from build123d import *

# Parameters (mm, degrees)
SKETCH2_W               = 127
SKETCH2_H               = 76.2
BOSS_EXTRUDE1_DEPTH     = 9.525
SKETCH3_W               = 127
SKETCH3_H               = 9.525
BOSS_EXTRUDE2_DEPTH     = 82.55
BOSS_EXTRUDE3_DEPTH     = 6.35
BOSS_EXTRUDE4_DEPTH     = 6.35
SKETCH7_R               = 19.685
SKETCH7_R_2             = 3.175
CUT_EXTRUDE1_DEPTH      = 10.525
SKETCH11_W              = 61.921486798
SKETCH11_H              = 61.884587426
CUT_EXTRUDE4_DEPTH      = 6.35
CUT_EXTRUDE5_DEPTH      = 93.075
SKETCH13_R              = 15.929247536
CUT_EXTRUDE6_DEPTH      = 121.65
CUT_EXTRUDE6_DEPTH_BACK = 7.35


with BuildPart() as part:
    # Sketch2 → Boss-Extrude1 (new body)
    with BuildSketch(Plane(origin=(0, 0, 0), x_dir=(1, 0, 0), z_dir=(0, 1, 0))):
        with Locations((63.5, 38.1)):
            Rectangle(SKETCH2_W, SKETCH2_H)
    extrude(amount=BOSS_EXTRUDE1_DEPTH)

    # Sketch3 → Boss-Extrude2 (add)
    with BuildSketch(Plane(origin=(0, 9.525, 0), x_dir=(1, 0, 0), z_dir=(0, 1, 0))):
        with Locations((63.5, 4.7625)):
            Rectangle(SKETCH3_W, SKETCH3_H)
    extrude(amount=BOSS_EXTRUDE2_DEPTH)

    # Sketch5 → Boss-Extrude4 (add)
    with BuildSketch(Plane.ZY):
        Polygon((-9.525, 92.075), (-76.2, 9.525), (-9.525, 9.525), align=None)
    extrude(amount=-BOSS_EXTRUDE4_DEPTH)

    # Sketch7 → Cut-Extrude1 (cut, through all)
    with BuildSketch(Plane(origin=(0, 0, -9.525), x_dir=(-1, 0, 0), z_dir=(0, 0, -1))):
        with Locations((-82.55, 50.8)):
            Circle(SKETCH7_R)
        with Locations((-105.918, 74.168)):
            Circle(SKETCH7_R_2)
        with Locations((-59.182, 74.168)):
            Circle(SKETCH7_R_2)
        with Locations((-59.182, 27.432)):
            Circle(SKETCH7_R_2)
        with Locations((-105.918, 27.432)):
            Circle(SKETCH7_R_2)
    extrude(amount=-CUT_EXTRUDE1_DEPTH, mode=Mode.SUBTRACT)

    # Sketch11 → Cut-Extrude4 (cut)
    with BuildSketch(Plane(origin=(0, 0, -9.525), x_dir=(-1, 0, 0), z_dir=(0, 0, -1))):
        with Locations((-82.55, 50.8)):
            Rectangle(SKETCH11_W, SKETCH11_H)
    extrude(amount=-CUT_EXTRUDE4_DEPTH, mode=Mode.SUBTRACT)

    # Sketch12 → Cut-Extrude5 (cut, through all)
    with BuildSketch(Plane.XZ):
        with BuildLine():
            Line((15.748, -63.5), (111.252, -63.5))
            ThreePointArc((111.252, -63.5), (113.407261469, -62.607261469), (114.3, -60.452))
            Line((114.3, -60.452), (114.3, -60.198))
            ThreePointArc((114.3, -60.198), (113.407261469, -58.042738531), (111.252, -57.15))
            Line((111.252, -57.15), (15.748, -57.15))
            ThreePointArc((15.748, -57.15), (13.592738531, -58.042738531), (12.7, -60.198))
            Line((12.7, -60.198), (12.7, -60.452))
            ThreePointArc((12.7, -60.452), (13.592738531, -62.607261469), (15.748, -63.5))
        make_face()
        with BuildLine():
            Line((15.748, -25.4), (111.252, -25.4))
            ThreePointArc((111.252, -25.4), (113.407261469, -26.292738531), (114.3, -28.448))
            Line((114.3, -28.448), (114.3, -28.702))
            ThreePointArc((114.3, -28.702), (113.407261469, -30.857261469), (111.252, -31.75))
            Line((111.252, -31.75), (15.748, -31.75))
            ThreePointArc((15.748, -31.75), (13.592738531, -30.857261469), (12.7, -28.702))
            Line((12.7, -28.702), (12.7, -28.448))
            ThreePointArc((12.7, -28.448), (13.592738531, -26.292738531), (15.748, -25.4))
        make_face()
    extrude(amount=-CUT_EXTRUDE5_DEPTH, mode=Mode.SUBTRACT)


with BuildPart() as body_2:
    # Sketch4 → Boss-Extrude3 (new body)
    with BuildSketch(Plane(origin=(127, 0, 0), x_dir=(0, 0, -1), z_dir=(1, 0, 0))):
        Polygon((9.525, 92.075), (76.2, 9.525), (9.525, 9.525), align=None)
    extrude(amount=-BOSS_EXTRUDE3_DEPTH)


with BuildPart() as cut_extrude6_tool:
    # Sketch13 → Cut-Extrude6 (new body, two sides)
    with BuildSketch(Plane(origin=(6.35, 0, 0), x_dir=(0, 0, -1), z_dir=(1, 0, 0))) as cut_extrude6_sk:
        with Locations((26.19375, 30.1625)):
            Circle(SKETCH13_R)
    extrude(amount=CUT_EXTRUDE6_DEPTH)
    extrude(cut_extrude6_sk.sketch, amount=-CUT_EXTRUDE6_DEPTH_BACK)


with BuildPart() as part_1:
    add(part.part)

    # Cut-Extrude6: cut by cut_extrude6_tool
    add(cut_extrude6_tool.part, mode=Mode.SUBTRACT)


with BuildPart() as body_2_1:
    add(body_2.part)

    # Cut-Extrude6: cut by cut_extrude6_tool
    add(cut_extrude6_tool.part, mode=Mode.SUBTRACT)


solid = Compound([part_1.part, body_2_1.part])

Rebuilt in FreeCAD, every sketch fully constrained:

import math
import FreeCAD as App
import Part
import Sketcher
from FreeCAD import Vector
Q = App.Units.Quantity

doc = App.newDocument("Part")
body = doc.addObject("PartDesign::Body", "Body")

# Sketch on XZ plane
sketch1 = doc.addObject("Sketcher::SketchObject", "Sketch")
body.addObject(sketch1)
sketch1.AttachmentSupport = (doc.XZ_Plane, [""])
sketch1.MapMode = "FlatFace"
sketch1.addGeometry(Part.LineSegment(Vector(0, -76, 0), Vector(0, 0, 0)), False)
sketch1.addGeometry(Part.LineSegment(Vector(0, 0, 0), Vector(127, 0, 0)), False)
sketch1.addGeometry(Part.LineSegment(Vector(127, 0, 0), Vector(127, -76, 0)), False)
sketch1.addGeometry(Part.LineSegment(Vector(127, -76, 0), Vector(0, -76, 0)), False)
sketch1.addConstraint(Sketcher.Constraint("Coincident", 0, 2, 1, 1))
sketch1.addConstraint(Sketcher.Constraint("Coincident", 1, 2, 2, 1))
sketch1.addConstraint(Sketcher.Constraint("Coincident", 2, 2, 3, 1))
sketch1.addConstraint(Sketcher.Constraint("Coincident", 3, 2, 0, 1))
sketch1.addConstraint(Sketcher.Constraint("Vertical", 0))
sketch1.addConstraint(Sketcher.Constraint("Horizontal", 1))
sketch1.addConstraint(Sketcher.Constraint("Vertical", 2))
sketch1.addConstraint(Sketcher.Constraint("Horizontal", 3))
sketch1.addConstraint(Sketcher.Constraint("Coincident", 0, 2, -1, 1))
sketch1.addConstraint(Sketcher.Constraint("DistanceX", 1, 1, 1, 2, Q("5 in")))
sketch1.addConstraint(Sketcher.Constraint("DistanceY", 0, 1, 0, 2, Q("3 in")))
pad1 = doc.addObject("PartDesign::Pad", "Pad")
body.addObject(pad1)
pad1.Profile = sketch1
pad1.Length = Q("0.375 in")
pad1.Reversed = True

# Sketch on XZ plane
sketch2 = doc.addObject("Sketcher::SketchObject", "Sketch001")
body.addObject(sketch2)
sketch2.AttachmentSupport = (doc.XZ_Plane, [""])
sketch2.MapMode = "FlatFace"
sketch2.AttachmentOffset = App.Placement(Vector(0, 0, -0.375 * 25.4), App.Rotation())
sketch2.addGeometry(Part.LineSegment(Vector(0, -10, 0), Vector(0, 0, 0)), False)
sketch2.addGeometry(Part.LineSegment(Vector(0, 0, 0), Vector(127, 0, 0)), False)
sketch2.addGeometry(Part.LineSegment(Vector(127, 0, 0), Vector(127, -10, 0)), False)
sketch2.addGeometry(Part.LineSegment(Vector(127, -10, 0), Vector(0, -10, 0)), False)
sketch2.addConstraint(Sketcher.Constraint("Coincident", 0, 2, 1, 1))
sketch2.addConstraint(Sketcher.Constraint("Coincident", 1, 2, 2, 1))
sketch2.addConstraint(Sketcher.Constraint("Coincident", 2, 2, 3, 1))
sketch2.addConstraint(Sketcher.Constraint("Coincident", 3, 2, 0, 1))
sketch2.addConstraint(Sketcher.Constraint("Vertical", 0))
sketch2.addConstraint(Sketcher.Constraint("Horizontal", 1))
sketch2.addConstraint(Sketcher.Constraint("Vertical", 2))
sketch2.addConstraint(Sketcher.Constraint("Horizontal", 3))
sketch2.addConstraint(Sketcher.Constraint("Coincident", 0, 2, -1, 1))
sketch2.addConstraint(Sketcher.Constraint("DistanceX", 1, 1, 1, 2, Q("5 in")))
sketch2.addConstraint(Sketcher.Constraint("DistanceY", 0, 1, 0, 2, Q("0.375 in")))
pad2 = doc.addObject("PartDesign::Pad", "Pad001")
body.addObject(pad2)
pad2.Profile = sketch2
pad2.Length = Q("3.25 in")
pad2.Reversed = True

# Sketch on YZ plane
sketch3 = doc.addObject("Sketcher::SketchObject", "Sketch002")
body.addObject(sketch3)
sketch3.AttachmentSupport = (doc.YZ_Plane, [""])
sketch3.MapMode = "FlatFace"
sketch3.addGeometry(Part.LineSegment(Vector(92, -10, 0), Vector(10, -76, 0)), False)
sketch3.addGeometry(Part.LineSegment(Vector(10, -76, 0), Vector(10, -10, 0)), False)
sketch3.addGeometry(Part.LineSegment(Vector(10, -10, 0), Vector(92, -10, 0)), False)
sketch3.addConstraint(Sketcher.Constraint("Coincident", 0, 2, 1, 1))
sketch3.addConstraint(Sketcher.Constraint("Coincident", 1, 2, 2, 1))
sketch3.addConstraint(Sketcher.Constraint("Coincident", 2, 2, 0, 1))
sketch3.addConstraint(Sketcher.Constraint("Vertical", 1))
sketch3.addConstraint(Sketcher.Constraint("Horizontal", 2))
sketch3.addConstraint(Sketcher.Constraint("DistanceY", 0, 2, -1, 1, Q("3 in")))
sketch3.addConstraint(Sketcher.Constraint("DistanceX", 2, 1, 2, 2, Q("3.25 in")))
sketch3.addConstraint(Sketcher.Constraint("DistanceY", 1, 1, 1, 2, Q("2.625 in")))
sketch3.addConstraint(Sketcher.Constraint("DistanceX", -1, 1, 0, 2, Q("0.375 in")))
pad3 = doc.addObject("PartDesign::Pad", "Pad002")
body.addObject(pad3)
pad3.Profile = sketch3
pad3.Length = Q("0.25 in")

# Sketch on XY plane
sketch4 = doc.addObject("Sketcher::SketchObject", "Sketch003")
body.addObject(sketch4)
sketch4.AttachmentSupport = (doc.XY_Plane, [""])
sketch4.MapMode = "FlatFace"
sketch4.AttachmentOffset = App.Placement(Vector(0, 0, -0.375 * 25.4), App.Rotation())
sketch4.addGeometry(Part.Circle(Vector(82.5, 50.8, 0), Vector(0, 0, 1), 19.7), False)
sketch4.addGeometry(Part.Circle(Vector(105.9, 74.2, 0), Vector(0, 0, 1), 3.2), False)
sketch4.addGeometry(Part.Circle(Vector(59.2, 74.2, 0), Vector(0, 0, 1), 3.2), False)
sketch4.addGeometry(Part.Circle(Vector(59.2, 27.4, 0), Vector(0, 0, 1), 3.2), False)
sketch4.addGeometry(Part.Circle(Vector(105.9, 27.4, 0), Vector(0, 0, 1), 3.2), False)
sketch4.addConstraint(Sketcher.Constraint("Equal", 1, 2))
sketch4.addConstraint(Sketcher.Constraint("Equal", 2, 3))
sketch4.addConstraint(Sketcher.Constraint("Equal", 3, 4))
sketch4.addConstraint(Sketcher.Constraint("Horizontal", 1, 3, 2, 3))
sketch4.addConstraint(Sketcher.Constraint("Horizontal", 3, 3, 4, 3))
sketch4.addConstraint(Sketcher.Constraint("Vertical", 2, 3, 3, 3))
sketch4.addConstraint(Sketcher.Constraint("Vertical", 1, 3, 4, 3))
sketch4.addConstraint(Sketcher.Constraint("Diameter", 0, Q("1.55 in")))
sketch4.addConstraint(Sketcher.Constraint("Diameter", 1, Q("0.25 in")))
sketch4.addConstraint(Sketcher.Constraint("DistanceY", -1, 1, 0, 3, Q("2 in")))
sketch4.addConstraint(Sketcher.Constraint("DistanceX", -1, 1, 0, 3, Q("3.25 in")))
sketch4.addConstraint(Sketcher.Constraint("DistanceX", -1, 1, 1, 3, Q("4.17 in")))
sketch4.addConstraint(Sketcher.Constraint("DistanceY", -1, 1, 1, 3, Q("2.92 in")))
sketch4.addConstraint(Sketcher.Constraint("DistanceX", -1, 1, 2, 3, Q("2.33 in")))
sketch4.addConstraint(Sketcher.Constraint("DistanceY", -1, 1, 3, 3, Q("1.08 in")))
pocket1 = doc.addObject("PartDesign::Pocket", "Pocket")
body.addObject(pocket1)
pocket1.Profile = sketch4
pocket1.Type = "ThroughAll"
pocket1.Reversed = True

# Sketch on XY plane
sketch5 = doc.addObject("Sketcher::SketchObject", "Sketch004")
body.addObject(sketch5)
sketch5.AttachmentSupport = (doc.XY_Plane, [""])
sketch5.MapMode = "FlatFace"
sketch5.AttachmentOffset = App.Placement(Vector(0, 0, -0.375 * 25.4), App.Rotation())
sketch5.addGeometry(Part.LineSegment(Vector(114, 82, 0), Vector(114, 20, 0)), False)
sketch5.addGeometry(Part.LineSegment(Vector(114, 20, 0), Vector(52, 20, 0)), False)
sketch5.addGeometry(Part.LineSegment(Vector(52, 20, 0), Vector(52, 82, 0)), False)
sketch5.addGeometry(Part.LineSegment(Vector(52, 82, 0), Vector(114, 82, 0)), False)
sketch5.addConstraint(Sketcher.Constraint("Coincident", 0, 2, 1, 1))
sketch5.addConstraint(Sketcher.Constraint("Coincident", 1, 2, 2, 1))
sketch5.addConstraint(Sketcher.Constraint("Coincident", 2, 2, 3, 1))
sketch5.addConstraint(Sketcher.Constraint("Coincident", 3, 2, 0, 1))
sketch5.addConstraint(Sketcher.Constraint("Vertical", 0))
sketch5.addConstraint(Sketcher.Constraint("Horizontal", 1))
sketch5.addConstraint(Sketcher.Constraint("Vertical", 2))
sketch5.addConstraint(Sketcher.Constraint("Horizontal", 3))
sketch5.addConstraint(Sketcher.Constraint("DistanceX", 1, 2, 1, 1, Q("61.921487 mm")))
sketch5.addConstraint(Sketcher.Constraint("DistanceY", 0, 2, 0, 1, Q("61.884587 mm")))
sketch5.addConstraint(Sketcher.Constraint("DistanceX", -1, 1, 0, 2, Q("113.510743 mm")))
sketch5.addConstraint(Sketcher.Constraint("DistanceY", -1, 1, 0, 2, Q("19.857706 mm")))
pocket2 = doc.addObject("PartDesign::Pocket", "Pocket001")
body.addObject(pocket2)
pocket2.Profile = sketch5
pocket2.Length = Q("0.25 in")
pocket2.Reversed = True

# Sketch on XZ plane
sketch6 = doc.addObject("Sketcher::SketchObject", "Sketch005")
body.addObject(sketch6)
sketch6.AttachmentSupport = (doc.XZ_Plane, [""])
sketch6.MapMode = "FlatFace"
sketch6.addGeometry(Part.LineSegment(Vector(15.75, -63.5, 0), Vector(111.25, -63.5, 0)), False)
sketch6.addGeometry(Part.ArcOfCircle(Part.Circle(Vector(111.25, -60.45, 0), Vector(0, 0, 1), 3.05), math.radians(-90), math.radians(0)), False)
sketch6.addGeometry(Part.LineSegment(Vector(114.3, -60.45, 0), Vector(114.3, -60.2, 0)), False)
sketch6.addGeometry(Part.ArcOfCircle(Part.Circle(Vector(111.25, -60.2, 0), Vector(0, 0, 1), 3.05), math.radians(0), math.radians(90)), False)
sketch6.addGeometry(Part.LineSegment(Vector(111.25, -57.15, 0), Vector(15.75, -57.15, 0)), False)
sketch6.addGeometry(Part.ArcOfCircle(Part.Circle(Vector(15.75, -60.2, 0), Vector(0, 0, 1), 3.05), math.radians(90), math.radians(180)), False)
sketch6.addGeometry(Part.LineSegment(Vector(12.7, -60.2, 0), Vector(12.7, -60.45, 0)), False)
sketch6.addGeometry(Part.ArcOfCircle(Part.Circle(Vector(15.75, -60.45, 0), Vector(0, 0, 1), 3.05), math.radians(180), math.radians(270)), False)
sketch6.addGeometry(Part.LineSegment(Vector(111.25, -25.4, 0), Vector(15.75, -25.4, 0)), False)
sketch6.addGeometry(Part.ArcOfCircle(Part.Circle(Vector(15.75, -28.45, 0), Vector(0, 0, 1), 3.05), math.radians(90), math.radians(180)), False)
sketch6.addGeometry(Part.LineSegment(Vector(12.7, -28.45, 0), Vector(12.7, -28.7, 0)), False)
sketch6.addGeometry(Part.ArcOfCircle(Part.Circle(Vector(15.75, -28.7, 0), Vector(0, 0, 1), 3.05), math.radians(180), math.radians(270)), False)
sketch6.addGeometry(Part.LineSegment(Vector(15.75, -31.75, 0), Vector(111.25, -31.75, 0)), False)
sketch6.addGeometry(Part.ArcOfCircle(Part.Circle(Vector(111.25, -28.7, 0), Vector(0, 0, 1), 3.05), math.radians(-90), math.radians(0)), False)
sketch6.addGeometry(Part.LineSegment(Vector(114.3, -28.7, 0), Vector(114.3, -28.45, 0)), False)
sketch6.addGeometry(Part.ArcOfCircle(Part.Circle(Vector(111.25, -28.45, 0), Vector(0, 0, 1), 3.05), math.radians(0), math.radians(90)), False)
sketch6.addConstraint(Sketcher.Constraint("Tangent", 0, 2, 1, 1))
sketch6.addConstraint(Sketcher.Constraint("Tangent", 1, 2, 2, 1))
sketch6.addConstraint(Sketcher.Constraint("Tangent", 2, 2, 3, 1))
sketch6.addConstraint(Sketcher.Constraint("Tangent", 3, 2, 4, 1))
sketch6.addConstraint(Sketcher.Constraint("Tangent", 4, 2, 5, 1))
sketch6.addConstraint(Sketcher.Constraint("Tangent", 5, 2, 6, 1))
sketch6.addConstraint(Sketcher.Constraint("Tangent", 6, 2, 7, 1))
sketch6.addConstraint(Sketcher.Constraint("Tangent", 7, 2, 0, 1))
sketch6.addConstraint(Sketcher.Constraint("Tangent", 8, 2, 9, 1))
sketch6.addConstraint(Sketcher.Constraint("Tangent", 9, 2, 10, 1))
sketch6.addConstraint(Sketcher.Constraint("Tangent", 10, 2, 11, 1))
sketch6.addConstraint(Sketcher.Constraint("Tangent", 11, 2, 12, 1))
sketch6.addConstraint(Sketcher.Constraint("Tangent", 12, 2, 13, 1))
sketch6.addConstraint(Sketcher.Constraint("Tangent", 13, 2, 14, 1))
sketch6.addConstraint(Sketcher.Constraint("Tangent", 14, 2, 15, 1))
sketch6.addConstraint(Sketcher.Constraint("Tangent", 15, 2, 8, 1))
sketch6.addConstraint(Sketcher.Constraint("Horizontal", 0))
sketch6.addConstraint(Sketcher.Constraint("Vertical", 2))
sketch6.addConstraint(Sketcher.Constraint("Horizontal", 4))
sketch6.addConstraint(Sketcher.Constraint("Vertical", 6))
sketch6.addConstraint(Sketcher.Constraint("Horizontal", 8))
sketch6.addConstraint(Sketcher.Constraint("Vertical", 10))
sketch6.addConstraint(Sketcher.Constraint("Horizontal", 12))
sketch6.addConstraint(Sketcher.Constraint("Vertical", 14))
sketch6.addConstraint(Sketcher.Constraint("Equal", 1, 3))
sketch6.addConstraint(Sketcher.Constraint("Equal", 3, 5))
sketch6.addConstraint(Sketcher.Constraint("Equal", 5, 7))
sketch6.addConstraint(Sketcher.Constraint("Equal", 7, 9))
sketch6.addConstraint(Sketcher.Constraint("Equal", 9, 11))
sketch6.addConstraint(Sketcher.Constraint("Equal", 11, 13))
sketch6.addConstraint(Sketcher.Constraint("Equal", 13, 15))
sketch6.addConstraint(Sketcher.Constraint("Vertical", 7, 3, 9, 3))
sketch6.addConstraint(Sketcher.Constraint("Vertical", 3, 3, 13, 3))
sketch6.addConstraint(Sketcher.Constraint("Equal", 6, 10))
sketch6.addConstraint(Sketcher.Constraint("Radius", 1, Q("0.12 in")))
sketch6.addConstraint(Sketcher.Constraint("DistanceY", 8, 2, -1, 1, Q("1 in")))
sketch6.addConstraint(Sketcher.Constraint("DistanceY", 3, 2, 12, 2, Q("1 in")))
sketch6.addConstraint(Sketcher.Constraint("DistanceX", 0, 1, 0, 2, Q("3.76 in")))
sketch6.addConstraint(Sketcher.Constraint("DistanceY", 2, 1, 2, 2, Q("0.01 in")))
sketch6.addConstraint(Sketcher.Constraint("DistanceX", -1, 1, 1, 2, Q("4.5 in")))
pocket3 = doc.addObject("PartDesign::Pocket", "Pocket002")
body.addObject(pocket3)
pocket3.Profile = sketch6
pocket3.Type = "ThroughAll"
body2 = doc.addObject("PartDesign::Body", "Body001")

# Sketch on YZ plane
sketch7 = doc.addObject("Sketcher::SketchObject", "Sketch006")
body2.addObject(sketch7)
sketch7.AttachmentSupport = (doc.getObject("YZ_Plane001"), [""])
sketch7.MapMode = "FlatFace"
sketch7.AttachmentOffset = App.Placement(Vector(0, 0, 5 * 25.4), App.Rotation())
sketch7.addGeometry(Part.LineSegment(Vector(10, -76, 0), Vector(92, -10, 0)), False)
sketch7.addGeometry(Part.LineSegment(Vector(92, -10, 0), Vector(10, -10, 0)), False)
sketch7.addGeometry(Part.LineSegment(Vector(10, -10, 0), Vector(10, -76, 0)), False)
sketch7.addConstraint(Sketcher.Constraint("Coincident", 0, 2, 1, 1))
sketch7.addConstraint(Sketcher.Constraint("Coincident", 1, 2, 2, 1))
sketch7.addConstraint(Sketcher.Constraint("Coincident", 2, 2, 0, 1))
sketch7.addConstraint(Sketcher.Constraint("Horizontal", 1))
sketch7.addConstraint(Sketcher.Constraint("Vertical", 2))
sketch7.addConstraint(Sketcher.Constraint("DistanceY", 2, 2, -1, 1, Q("3 in")))
sketch7.addConstraint(Sketcher.Constraint("DistanceX", 1, 2, 1, 1, Q("3.25 in")))
sketch7.addConstraint(Sketcher.Constraint("DistanceY", 2, 2, 2, 1, Q("2.625 in")))
sketch7.addConstraint(Sketcher.Constraint("DistanceX", -1, 1, 0, 2, Q("3.625 in")))
pad4 = doc.addObject("PartDesign::Pad", "Pad003")
body2.addObject(pad4)
pad4.Profile = sketch7
pad4.Length = Q("0.25 in")
pad4.Reversed = True
body3 = doc.addObject("PartDesign::Body", "Body002")

# Sketch on YZ plane
sketch8 = doc.addObject("Sketcher::SketchObject", "Sketch007")
body3.addObject(sketch8)
sketch8.AttachmentSupport = (doc.getObject("YZ_Plane002"), [""])
sketch8.MapMode = "FlatFace"
sketch8.AttachmentOffset = App.Placement(Vector(0, 0, 0.25 * 25.4), App.Rotation())
sketch8.addGeometry(Part.Circle(Vector(30, -26, 0), Vector(0, 0, 1), 16), False)
sketch8.addConstraint(Sketcher.Constraint("DistanceX", -1, 1, 0, 3, Q("1.1875 in")))
sketch8.addConstraint(Sketcher.Constraint("DistanceY", 0, 3, -1, 1, Q("1.03125 in")))
sketch8.addConstraint(Sketcher.Constraint("Diameter", 0, Q("31.858495 mm")))
pad5 = doc.addObject("PartDesign::Pad", "Pad004")
body3.addObject(pad5)
pad5.Profile = sketch8
pad5.Type = "TwoLengths"
pad5.Length = 121.65
pad5.Length2 = 7.35
doc.recompute()

body4 = doc.addObject("PartDesign::Body", "Body003")
body4.BaseFeature = body3
boolean = doc.addObject("PartDesign::Boolean", "Boolean")
body.addObject(boolean)
boolean.Type = "Cut"
boolean.addObjects([body4])
doc.recompute()

boolean2 = doc.addObject("PartDesign::Boolean", "Boolean001")
body2.addObject(boolean2)
boolean2.Type = "Cut"
boolean2.addObjects([body3])

doc.recompute()
